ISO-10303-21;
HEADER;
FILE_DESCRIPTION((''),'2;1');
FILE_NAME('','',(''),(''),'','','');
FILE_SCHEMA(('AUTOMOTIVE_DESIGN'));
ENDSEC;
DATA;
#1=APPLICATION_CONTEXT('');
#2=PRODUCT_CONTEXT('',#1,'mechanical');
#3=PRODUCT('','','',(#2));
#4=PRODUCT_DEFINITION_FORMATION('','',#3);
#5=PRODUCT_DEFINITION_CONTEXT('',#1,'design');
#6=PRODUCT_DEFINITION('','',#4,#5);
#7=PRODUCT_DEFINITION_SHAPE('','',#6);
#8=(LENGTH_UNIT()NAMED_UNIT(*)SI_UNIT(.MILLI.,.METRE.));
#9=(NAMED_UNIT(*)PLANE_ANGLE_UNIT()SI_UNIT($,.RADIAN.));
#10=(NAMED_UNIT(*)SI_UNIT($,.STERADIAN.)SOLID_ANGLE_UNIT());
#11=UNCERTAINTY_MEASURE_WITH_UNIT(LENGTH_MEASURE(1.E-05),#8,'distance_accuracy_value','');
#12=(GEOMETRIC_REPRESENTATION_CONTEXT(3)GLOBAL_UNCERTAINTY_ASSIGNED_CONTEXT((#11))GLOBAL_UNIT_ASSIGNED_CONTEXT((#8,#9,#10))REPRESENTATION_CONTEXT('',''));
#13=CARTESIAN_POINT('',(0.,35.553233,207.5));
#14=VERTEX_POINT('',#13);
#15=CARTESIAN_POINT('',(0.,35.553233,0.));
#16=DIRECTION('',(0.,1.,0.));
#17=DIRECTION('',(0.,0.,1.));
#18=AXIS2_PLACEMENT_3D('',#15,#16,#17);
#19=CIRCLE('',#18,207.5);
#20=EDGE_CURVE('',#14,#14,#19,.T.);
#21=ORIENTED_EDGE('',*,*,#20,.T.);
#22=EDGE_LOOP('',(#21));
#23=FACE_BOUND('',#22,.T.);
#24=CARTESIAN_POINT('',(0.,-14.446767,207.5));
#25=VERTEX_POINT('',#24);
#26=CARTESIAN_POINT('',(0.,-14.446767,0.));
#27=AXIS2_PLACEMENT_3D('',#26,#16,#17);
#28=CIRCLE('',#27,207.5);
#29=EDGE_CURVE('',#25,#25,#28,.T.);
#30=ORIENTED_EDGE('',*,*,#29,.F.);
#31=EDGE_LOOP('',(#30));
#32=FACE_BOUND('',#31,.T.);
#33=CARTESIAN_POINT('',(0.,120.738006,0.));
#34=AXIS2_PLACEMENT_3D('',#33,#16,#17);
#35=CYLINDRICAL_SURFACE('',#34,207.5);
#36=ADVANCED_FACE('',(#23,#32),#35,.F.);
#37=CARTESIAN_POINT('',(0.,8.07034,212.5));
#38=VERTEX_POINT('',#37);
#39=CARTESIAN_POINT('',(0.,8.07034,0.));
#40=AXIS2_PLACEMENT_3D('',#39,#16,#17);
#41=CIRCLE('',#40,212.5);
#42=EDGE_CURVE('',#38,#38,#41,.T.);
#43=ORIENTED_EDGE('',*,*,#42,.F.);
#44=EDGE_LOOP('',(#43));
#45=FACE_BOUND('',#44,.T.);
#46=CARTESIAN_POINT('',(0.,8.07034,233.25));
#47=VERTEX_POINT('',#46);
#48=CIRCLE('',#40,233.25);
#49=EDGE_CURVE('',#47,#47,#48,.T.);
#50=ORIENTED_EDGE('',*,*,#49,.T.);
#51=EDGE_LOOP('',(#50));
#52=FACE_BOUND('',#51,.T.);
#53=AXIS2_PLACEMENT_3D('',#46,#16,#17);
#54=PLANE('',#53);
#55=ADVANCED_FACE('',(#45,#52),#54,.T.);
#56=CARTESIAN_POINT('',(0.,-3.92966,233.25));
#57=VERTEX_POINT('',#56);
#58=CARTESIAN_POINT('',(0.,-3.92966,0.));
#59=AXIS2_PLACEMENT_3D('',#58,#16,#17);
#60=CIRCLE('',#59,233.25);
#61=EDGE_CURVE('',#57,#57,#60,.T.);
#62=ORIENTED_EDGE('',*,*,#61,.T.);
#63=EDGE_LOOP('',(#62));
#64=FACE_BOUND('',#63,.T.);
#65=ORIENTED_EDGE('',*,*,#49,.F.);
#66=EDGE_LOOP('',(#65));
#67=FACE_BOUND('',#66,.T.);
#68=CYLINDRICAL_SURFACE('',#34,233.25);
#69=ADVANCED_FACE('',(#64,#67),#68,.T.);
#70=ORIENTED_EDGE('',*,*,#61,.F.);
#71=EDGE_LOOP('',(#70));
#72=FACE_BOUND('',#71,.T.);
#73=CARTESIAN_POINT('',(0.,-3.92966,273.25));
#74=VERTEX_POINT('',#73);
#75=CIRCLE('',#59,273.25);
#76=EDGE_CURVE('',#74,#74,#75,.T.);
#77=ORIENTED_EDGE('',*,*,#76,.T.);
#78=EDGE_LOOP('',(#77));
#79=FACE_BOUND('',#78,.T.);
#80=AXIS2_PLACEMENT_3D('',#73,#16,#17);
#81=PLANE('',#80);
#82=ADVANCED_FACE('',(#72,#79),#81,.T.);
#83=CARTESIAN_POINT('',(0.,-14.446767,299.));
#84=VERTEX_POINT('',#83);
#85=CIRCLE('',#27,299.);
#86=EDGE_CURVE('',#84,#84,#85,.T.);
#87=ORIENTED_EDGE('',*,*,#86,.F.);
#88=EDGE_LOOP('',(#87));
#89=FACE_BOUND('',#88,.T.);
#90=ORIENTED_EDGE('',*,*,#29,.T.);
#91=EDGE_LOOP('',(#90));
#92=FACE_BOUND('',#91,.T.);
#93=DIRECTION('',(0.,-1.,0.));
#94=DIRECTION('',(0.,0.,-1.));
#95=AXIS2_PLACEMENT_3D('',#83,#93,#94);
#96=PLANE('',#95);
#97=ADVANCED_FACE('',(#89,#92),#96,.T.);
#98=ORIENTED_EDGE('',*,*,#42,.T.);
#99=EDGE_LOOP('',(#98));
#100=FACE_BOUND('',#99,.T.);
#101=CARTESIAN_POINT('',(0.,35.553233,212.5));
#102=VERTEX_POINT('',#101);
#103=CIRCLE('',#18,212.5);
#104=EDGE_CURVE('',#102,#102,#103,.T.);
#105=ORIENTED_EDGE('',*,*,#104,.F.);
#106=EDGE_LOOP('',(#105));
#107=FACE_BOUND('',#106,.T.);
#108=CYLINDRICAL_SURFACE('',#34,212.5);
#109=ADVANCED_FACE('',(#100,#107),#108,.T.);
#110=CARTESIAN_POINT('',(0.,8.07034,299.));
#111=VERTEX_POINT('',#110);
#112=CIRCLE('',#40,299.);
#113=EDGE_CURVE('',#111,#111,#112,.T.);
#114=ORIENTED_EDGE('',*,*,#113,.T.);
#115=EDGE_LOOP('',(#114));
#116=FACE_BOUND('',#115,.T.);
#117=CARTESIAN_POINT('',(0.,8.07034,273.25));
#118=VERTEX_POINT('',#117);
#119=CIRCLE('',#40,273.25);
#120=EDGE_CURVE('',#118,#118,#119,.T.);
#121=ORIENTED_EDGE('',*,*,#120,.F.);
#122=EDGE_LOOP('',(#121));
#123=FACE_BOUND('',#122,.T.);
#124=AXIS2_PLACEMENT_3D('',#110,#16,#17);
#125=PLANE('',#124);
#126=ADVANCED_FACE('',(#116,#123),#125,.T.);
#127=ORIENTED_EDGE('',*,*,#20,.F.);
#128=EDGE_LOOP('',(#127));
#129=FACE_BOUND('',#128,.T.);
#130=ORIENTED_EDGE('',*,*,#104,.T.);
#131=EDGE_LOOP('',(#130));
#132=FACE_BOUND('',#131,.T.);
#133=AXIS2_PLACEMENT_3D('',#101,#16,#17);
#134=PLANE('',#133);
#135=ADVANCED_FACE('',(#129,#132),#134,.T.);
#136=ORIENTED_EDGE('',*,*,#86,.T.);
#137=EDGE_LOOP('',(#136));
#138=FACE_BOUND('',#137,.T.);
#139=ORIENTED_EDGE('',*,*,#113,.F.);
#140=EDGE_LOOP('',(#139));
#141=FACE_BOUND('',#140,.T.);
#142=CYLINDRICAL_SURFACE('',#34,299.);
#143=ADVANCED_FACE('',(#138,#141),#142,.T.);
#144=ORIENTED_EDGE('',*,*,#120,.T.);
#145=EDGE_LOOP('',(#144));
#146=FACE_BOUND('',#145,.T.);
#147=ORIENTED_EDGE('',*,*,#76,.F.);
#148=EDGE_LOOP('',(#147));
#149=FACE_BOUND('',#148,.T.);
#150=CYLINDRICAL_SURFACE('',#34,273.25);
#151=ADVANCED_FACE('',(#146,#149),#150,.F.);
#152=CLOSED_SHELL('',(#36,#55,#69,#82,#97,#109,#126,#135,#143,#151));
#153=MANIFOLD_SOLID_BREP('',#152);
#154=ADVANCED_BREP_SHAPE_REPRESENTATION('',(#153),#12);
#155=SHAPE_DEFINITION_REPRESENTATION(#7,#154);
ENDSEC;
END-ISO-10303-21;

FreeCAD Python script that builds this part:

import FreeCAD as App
import Part
import Sketcher
from FreeCAD import Vector

doc = App.newDocument("Part")
params = doc.addObject("Spreadsheet::Sheet", "Params")
for row, (alias, value) in enumerate([
    ("sketch1_width", "12 mm"),
    ("sketch1_width2", "50 mm"),
    ("sketch1_height", "40 mm"),
    ("sketch1_height2", "5 mm"),
    ("sketch1_height3", "91.5 mm"),
    ("revolution_angle", "360 deg"),
], start=1):
    params.set(f"A{row}", alias)
    params.set(f"B{row}", "=" + value)
    params.setAlias(f"B{row}", alias)

body = doc.addObject("PartDesign::Body", "Body")

# Sketch on YZ plane
sketch1 = body.newObject("Sketcher::SketchObject", "Sketch")
sketch1.AttachmentSupport = (doc.getObject("YZ_Plane"), [""])
sketch1.MapMode = "FlatFace"
sketch1.addGeometry([
    Part.LineSegment(Vector(36, 212, 0), Vector(8, 212, 0)),  # 0
    Part.LineSegment(Vector(8, 212, 0), Vector(8, 233, 0)),  # 1
    Part.LineSegment(Vector(8, 233, 0), Vector(-4, 233, 0)),  # 2
    Part.LineSegment(Vector(-4, 233, 0), Vector(-4, 273, 0)),  # 3
    Part.LineSegment(Vector(-4, 273, 0), Vector(8, 273, 0)),  # 4
    Part.LineSegment(Vector(8, 273, 0), Vector(8, 299, 0)),  # 5
    Part.LineSegment(Vector(8, 299, 0), Vector(-14, 299, 0)),  # 6
    Part.LineSegment(Vector(-14, 299, 0), Vector(-14, 208, 0)),  # 7
    Part.LineSegment(Vector(-14, 208, 0), Vector(36, 208, 0)),  # 8
    Part.LineSegment(Vector(36, 208, 0), Vector(36, 212, 0)),  # 9
], False)
sketch1.addConstraint([
    Sketcher.Constraint("Coincident", 0, 2, 1, 1),
    Sketcher.Constraint("Coincident", 1, 2, 2, 1),
    Sketcher.Constraint("Coincident", 2, 2, 3, 1),
    Sketcher.Constraint("Coincident", 3, 2, 4, 1),
    Sketcher.Constraint("Coincident", 4, 2, 5, 1),
    Sketcher.Constraint("Coincident", 5, 2, 6, 1),
    Sketcher.Constraint("Coincident", 6, 2, 7, 1),
    Sketcher.Constraint("Coincident", 7, 2, 8, 1),
    Sketcher.Constraint("Coincident", 8, 2, 9, 1),
    Sketcher.Constraint("Coincident", 9, 2, 0, 1),
    Sketcher.Constraint("Horizontal", 0),
    Sketcher.Constraint("Vertical", 1),
    Sketcher.Constraint("Horizontal", 2),
    Sketcher.Constraint("Vertical", 3),
    Sketcher.Constraint("Horizontal", 4),
    Sketcher.Constraint("Vertical", 5),
    Sketcher.Constraint("Horizontal", 6),
    Sketcher.Constraint("Vertical", 7),
    Sketcher.Constraint("Horizontal", 8),
    Sketcher.Constraint("Vertical", 9),
    Sketcher.Constraint("Vertical", 1, 2, 4, 2),
    Sketcher.Constraint("DistanceX", 2, 2, 2, 1, 12.0),
    Sketcher.Constraint("DistanceX", 8, 1, 8, 2, 50.0),
    Sketcher.Constraint("DistanceY", 3, 1, 3, 2, 40.0),
    Sketcher.Constraint("DistanceY", 9, 1, 9, 2, 5.0),
    Sketcher.Constraint("DistanceY", 7, 2, 7, 1, 91.5),
    Sketcher.Constraint("DistanceY", -1, 1, 5, 2, 299.0),
    Sketcher.Constraint("DistanceY", 1, 1, 1, 2, 20.75),
    Sketcher.Constraint("DistanceX", 0, 2, 0, 1, 27.482893),
    Sketcher.Constraint("DistanceX", -1, 1, 0, 2, 8.07034),
])
sketch1.setExpression("Constraints[21]", "Params.sketch1_width")
sketch1.setExpression("Constraints[22]", "Params.sketch1_width2")
sketch1.setExpression("Constraints[23]", "Params.sketch1_height")
sketch1.setExpression("Constraints[24]", "Params.sketch1_height2")
sketch1.setExpression("Constraints[25]", "Params.sketch1_height3")
revolution = body.newObject("PartDesign::Revolution", "Revolution")
revolution.Profile = sketch1
revolution.ReferenceAxis = (sketch1, ["H_Axis"])
revolution.setExpression("Angle", "Params.revolution_angle")

doc.recompute()
